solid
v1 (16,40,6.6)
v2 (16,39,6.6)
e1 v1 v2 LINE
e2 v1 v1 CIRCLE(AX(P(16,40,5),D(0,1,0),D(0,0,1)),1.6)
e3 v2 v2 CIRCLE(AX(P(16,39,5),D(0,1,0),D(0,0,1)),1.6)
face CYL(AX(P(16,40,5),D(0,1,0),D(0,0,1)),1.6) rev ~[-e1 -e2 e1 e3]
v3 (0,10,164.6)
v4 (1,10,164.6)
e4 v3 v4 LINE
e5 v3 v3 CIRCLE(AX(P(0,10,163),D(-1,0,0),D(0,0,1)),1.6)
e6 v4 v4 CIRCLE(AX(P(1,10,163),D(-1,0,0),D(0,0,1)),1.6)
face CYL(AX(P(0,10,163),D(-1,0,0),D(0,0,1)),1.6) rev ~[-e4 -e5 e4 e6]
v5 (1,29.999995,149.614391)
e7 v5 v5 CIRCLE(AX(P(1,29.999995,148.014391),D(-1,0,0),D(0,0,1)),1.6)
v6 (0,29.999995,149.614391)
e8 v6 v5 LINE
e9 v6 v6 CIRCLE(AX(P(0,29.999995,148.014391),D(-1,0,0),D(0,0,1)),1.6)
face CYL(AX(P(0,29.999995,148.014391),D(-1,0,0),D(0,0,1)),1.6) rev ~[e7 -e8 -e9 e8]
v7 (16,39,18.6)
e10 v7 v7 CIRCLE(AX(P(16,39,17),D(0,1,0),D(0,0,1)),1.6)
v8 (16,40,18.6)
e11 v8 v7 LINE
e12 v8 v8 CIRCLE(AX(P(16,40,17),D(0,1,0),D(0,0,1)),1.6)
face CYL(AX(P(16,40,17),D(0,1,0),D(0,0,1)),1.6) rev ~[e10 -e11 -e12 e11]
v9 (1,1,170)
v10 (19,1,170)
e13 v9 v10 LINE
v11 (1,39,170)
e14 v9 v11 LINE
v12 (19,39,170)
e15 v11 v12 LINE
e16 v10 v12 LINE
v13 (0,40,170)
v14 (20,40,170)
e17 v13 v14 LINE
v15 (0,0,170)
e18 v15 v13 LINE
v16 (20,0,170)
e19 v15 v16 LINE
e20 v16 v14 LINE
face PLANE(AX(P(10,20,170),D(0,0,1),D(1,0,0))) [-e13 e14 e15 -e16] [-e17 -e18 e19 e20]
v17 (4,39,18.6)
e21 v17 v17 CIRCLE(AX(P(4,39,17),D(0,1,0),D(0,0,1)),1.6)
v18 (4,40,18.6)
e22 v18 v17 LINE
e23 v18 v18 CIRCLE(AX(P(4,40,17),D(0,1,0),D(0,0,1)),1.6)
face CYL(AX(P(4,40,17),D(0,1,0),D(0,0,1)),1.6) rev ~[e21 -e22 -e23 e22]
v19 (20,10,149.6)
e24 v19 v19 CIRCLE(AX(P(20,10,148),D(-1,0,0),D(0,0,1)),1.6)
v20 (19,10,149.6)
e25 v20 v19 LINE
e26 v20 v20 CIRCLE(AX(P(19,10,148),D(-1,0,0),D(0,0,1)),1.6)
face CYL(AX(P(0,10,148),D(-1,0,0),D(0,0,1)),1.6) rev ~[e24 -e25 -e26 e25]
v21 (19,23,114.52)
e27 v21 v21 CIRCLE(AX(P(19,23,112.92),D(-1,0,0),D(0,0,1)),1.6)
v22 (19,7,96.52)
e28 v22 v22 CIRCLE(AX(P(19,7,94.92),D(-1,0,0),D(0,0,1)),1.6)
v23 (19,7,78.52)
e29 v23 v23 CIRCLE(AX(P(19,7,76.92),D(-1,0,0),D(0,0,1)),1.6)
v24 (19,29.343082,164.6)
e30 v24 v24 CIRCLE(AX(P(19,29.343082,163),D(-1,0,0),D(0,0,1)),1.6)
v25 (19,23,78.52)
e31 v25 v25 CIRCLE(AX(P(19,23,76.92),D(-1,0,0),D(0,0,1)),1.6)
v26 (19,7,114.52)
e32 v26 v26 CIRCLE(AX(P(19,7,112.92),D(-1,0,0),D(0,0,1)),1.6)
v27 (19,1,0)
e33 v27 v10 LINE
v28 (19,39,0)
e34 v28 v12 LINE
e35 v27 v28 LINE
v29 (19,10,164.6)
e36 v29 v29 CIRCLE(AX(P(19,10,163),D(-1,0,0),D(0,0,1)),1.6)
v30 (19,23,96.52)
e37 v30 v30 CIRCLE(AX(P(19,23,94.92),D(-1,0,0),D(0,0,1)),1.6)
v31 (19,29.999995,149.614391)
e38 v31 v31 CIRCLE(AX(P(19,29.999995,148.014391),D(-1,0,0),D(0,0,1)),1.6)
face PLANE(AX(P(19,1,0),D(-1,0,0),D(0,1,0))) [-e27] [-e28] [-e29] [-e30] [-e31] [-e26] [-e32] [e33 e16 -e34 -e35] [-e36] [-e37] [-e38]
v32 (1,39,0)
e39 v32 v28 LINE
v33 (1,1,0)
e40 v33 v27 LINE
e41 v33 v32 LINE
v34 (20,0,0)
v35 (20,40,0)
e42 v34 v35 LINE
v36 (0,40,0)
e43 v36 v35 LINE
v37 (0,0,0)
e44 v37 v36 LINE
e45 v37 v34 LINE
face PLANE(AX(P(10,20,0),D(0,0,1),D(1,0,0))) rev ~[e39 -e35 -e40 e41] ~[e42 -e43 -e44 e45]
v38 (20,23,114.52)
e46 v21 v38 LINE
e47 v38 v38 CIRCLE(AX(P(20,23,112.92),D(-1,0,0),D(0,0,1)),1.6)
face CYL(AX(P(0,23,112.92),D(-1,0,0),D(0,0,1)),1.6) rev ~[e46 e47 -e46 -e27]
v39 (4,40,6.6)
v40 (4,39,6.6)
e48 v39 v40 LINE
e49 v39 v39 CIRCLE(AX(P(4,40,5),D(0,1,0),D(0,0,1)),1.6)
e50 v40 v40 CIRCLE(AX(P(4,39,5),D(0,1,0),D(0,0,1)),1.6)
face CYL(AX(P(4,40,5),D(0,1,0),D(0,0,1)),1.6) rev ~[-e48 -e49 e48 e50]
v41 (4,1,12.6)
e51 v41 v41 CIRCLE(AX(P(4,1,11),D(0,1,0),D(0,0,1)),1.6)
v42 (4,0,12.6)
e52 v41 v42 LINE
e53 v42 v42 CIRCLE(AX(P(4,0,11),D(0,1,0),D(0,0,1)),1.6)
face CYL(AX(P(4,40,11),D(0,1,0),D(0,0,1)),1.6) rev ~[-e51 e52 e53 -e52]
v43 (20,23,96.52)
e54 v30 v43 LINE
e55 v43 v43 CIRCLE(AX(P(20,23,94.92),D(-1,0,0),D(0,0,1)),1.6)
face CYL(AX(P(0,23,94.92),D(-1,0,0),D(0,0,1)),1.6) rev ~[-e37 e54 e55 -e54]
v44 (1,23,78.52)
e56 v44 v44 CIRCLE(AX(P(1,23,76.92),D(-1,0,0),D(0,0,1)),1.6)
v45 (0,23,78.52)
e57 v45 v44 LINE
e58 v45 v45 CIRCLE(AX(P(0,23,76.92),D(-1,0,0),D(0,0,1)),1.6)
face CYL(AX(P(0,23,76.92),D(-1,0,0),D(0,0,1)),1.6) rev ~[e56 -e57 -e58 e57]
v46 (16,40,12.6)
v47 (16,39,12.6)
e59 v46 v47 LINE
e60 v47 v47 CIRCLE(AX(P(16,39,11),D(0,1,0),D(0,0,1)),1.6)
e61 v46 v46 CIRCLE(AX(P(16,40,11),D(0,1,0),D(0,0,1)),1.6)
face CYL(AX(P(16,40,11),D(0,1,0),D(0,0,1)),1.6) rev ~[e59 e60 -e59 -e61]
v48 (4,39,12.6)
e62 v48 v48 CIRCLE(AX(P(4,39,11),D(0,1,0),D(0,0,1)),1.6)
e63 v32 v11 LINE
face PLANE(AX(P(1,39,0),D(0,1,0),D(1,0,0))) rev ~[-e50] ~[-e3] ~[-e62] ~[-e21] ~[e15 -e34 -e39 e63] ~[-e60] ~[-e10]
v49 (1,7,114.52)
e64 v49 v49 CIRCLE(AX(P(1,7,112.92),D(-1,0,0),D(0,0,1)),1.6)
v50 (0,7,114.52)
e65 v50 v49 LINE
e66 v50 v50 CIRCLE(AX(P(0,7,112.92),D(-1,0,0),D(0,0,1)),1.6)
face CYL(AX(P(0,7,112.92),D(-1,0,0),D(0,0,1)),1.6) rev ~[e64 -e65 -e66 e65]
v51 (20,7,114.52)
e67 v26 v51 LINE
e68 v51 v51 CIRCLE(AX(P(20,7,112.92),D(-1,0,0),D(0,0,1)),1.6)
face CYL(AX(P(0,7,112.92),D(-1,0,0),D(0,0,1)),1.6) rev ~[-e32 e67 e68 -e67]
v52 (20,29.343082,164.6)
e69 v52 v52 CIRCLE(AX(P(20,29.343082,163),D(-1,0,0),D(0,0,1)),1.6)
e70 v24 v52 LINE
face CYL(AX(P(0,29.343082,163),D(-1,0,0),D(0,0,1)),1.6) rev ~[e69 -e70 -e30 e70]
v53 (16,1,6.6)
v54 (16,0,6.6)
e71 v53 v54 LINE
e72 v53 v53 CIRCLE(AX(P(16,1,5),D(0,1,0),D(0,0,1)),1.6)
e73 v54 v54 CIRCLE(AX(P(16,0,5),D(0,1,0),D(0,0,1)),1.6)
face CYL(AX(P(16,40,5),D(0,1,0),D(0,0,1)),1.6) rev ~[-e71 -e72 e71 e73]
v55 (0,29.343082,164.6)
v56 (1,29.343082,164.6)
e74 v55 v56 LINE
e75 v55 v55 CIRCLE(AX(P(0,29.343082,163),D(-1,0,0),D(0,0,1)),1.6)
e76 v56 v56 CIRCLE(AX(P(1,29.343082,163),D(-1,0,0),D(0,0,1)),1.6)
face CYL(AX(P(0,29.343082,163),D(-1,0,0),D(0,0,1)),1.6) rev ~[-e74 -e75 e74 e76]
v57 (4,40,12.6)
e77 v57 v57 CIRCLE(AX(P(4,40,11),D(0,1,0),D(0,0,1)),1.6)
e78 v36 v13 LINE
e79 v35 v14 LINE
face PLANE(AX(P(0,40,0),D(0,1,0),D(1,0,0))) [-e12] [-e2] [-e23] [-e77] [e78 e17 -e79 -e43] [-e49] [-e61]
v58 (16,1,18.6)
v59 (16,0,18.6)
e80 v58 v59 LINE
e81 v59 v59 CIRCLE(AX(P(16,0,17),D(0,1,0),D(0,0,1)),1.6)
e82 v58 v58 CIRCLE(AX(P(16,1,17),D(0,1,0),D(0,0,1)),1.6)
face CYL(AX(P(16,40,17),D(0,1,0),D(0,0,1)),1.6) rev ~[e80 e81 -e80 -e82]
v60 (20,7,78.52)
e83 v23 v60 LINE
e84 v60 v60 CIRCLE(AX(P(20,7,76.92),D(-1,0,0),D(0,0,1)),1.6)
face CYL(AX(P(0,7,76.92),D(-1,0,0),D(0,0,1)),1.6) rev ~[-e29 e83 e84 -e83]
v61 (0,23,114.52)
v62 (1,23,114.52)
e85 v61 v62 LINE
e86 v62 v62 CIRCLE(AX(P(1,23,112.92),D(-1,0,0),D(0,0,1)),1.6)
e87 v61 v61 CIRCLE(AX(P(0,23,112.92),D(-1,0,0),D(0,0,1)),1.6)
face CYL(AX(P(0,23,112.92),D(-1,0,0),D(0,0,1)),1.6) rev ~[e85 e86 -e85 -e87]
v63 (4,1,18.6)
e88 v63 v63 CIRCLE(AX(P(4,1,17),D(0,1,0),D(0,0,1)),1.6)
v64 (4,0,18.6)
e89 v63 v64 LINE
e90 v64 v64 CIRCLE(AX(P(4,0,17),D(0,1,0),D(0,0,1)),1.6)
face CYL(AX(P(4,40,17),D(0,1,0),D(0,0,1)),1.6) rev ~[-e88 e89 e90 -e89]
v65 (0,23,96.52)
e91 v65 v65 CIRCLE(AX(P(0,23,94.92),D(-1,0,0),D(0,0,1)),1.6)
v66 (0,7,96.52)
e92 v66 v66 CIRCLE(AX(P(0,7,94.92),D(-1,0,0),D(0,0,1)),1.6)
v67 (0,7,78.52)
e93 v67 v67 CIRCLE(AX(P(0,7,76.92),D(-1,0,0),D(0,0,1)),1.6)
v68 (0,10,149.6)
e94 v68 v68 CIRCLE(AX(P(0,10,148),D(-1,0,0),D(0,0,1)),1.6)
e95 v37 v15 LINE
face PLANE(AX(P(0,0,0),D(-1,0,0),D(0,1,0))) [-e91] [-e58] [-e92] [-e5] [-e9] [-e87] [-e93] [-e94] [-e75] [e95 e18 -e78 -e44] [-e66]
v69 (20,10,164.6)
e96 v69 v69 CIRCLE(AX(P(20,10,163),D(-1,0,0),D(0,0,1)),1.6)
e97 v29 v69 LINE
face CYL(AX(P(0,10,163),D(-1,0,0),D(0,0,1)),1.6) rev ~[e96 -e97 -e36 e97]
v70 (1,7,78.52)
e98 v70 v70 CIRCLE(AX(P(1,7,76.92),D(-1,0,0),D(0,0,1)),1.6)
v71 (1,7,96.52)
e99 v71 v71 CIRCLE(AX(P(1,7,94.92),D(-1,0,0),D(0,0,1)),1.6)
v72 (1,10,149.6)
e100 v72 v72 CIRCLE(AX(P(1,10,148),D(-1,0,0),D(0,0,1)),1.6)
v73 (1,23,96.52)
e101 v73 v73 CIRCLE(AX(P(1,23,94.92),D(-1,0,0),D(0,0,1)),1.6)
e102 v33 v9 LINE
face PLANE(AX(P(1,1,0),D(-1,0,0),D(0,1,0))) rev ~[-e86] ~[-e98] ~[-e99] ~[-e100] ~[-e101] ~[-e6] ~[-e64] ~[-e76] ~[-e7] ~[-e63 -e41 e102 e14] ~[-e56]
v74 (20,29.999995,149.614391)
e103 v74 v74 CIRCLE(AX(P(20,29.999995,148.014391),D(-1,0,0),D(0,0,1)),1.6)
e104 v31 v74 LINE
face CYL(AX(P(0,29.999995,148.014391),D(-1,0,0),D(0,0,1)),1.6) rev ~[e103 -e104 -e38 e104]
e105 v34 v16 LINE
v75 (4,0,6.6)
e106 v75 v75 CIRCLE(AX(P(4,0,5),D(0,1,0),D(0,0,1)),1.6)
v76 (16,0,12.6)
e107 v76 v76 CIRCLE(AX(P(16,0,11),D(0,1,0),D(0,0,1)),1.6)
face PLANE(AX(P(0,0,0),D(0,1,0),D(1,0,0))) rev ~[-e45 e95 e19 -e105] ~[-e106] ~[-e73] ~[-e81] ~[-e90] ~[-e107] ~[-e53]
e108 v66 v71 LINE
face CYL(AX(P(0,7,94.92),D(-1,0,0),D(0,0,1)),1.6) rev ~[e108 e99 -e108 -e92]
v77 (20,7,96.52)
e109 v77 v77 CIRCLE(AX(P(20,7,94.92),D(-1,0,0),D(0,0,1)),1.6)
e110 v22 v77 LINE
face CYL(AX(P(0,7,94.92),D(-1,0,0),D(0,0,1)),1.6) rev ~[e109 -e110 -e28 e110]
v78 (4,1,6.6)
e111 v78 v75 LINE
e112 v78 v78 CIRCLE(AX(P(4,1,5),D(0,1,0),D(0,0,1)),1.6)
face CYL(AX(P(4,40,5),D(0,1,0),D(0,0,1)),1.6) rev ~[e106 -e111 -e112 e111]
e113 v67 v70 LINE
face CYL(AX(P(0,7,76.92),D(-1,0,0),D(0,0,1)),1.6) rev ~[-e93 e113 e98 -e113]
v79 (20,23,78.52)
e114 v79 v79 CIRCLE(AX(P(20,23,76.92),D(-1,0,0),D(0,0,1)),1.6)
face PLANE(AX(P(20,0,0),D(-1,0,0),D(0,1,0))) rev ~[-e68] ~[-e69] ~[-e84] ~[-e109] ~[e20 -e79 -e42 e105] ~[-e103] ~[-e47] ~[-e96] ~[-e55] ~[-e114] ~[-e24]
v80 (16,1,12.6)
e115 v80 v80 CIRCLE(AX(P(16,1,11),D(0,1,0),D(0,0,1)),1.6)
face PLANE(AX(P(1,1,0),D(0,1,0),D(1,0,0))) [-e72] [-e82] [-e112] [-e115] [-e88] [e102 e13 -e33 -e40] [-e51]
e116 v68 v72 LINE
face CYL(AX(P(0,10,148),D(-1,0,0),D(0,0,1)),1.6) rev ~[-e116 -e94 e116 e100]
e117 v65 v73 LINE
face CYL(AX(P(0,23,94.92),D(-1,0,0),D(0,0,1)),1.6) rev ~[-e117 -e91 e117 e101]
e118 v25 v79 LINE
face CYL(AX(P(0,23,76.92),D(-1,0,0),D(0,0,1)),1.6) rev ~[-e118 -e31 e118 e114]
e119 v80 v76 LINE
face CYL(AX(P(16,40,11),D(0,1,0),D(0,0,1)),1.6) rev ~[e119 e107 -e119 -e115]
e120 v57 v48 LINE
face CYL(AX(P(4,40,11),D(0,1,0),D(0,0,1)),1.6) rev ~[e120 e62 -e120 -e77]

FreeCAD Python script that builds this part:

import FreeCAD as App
import Part
import Sketcher

V = App.Vector
Q = App.Units.Quantity

doc = App.newDocument("Part")
body = doc.addObject("PartDesign::Body", "Body")

sketch1 = body.newObject("Sketcher::SketchObject", "Sketch")
sketch1.AttachmentSupport = (doc.getObject("XY_Plane"), [""])
sketch1.MapMode = "FlatFace"
sketch1.addGeometry([
    Part.LineSegment(V(0, 40, 0), V(0, 0, 0)),
    Part.LineSegment(V(0, 0, 0), V(20, 0, 0)),
    Part.LineSegment(V(20, 0, 0), V(20, 40, 0)),
    Part.LineSegment(V(20, 40, 0), V(0, 40, 0)),
    Part.LineSegment(V(19, 1, 0), V(1, 1, 0)),
    Part.LineSegment(V(1, 1, 0), V(1, 39, 0)),
    Part.LineSegment(V(1, 39, 0), V(19, 39, 0)),
    Part.LineSegment(V(19, 39, 0), V(19, 1, 0)),
], False)
sketch1.addConstraint([
    Sketcher.Constraint("Coincident", 0, 2, 1, 1),
    Sketcher.Constraint("Coincident", 1, 2, 2, 1),
    Sketcher.Constraint("Coincident", 2, 2, 3, 1),
    Sketcher.Constraint("Coincident", 3, 2, 0, 1),
    Sketcher.Constraint("Coincident", 4, 2, 5, 1),
    Sketcher.Constraint("Coincident", 5, 2, 6, 1),
    Sketcher.Constraint("Coincident", 6, 2, 7, 1),
    Sketcher.Constraint("Coincident", 7, 2, 4, 1),
    Sketcher.Constraint("Vertical", 0),
    Sketcher.Constraint("Horizontal", 1),
    Sketcher.Constraint("Vertical", 2),
    Sketcher.Constraint("Horizontal", 3),
    Sketcher.Constraint("Horizontal", 4),
    Sketcher.Constraint("Vertical", 5),
    Sketcher.Constraint("Horizontal", 6),
    Sketcher.Constraint("Vertical", 7),
    Sketcher.Constraint("Coincident", 0, 2, -1, 1),
    Sketcher.Constraint("DistanceX", 1, 1, 1, 2, Q("20 mm")),
    Sketcher.Constraint("DistanceX", 4, 2, 4, 1, Q("18 mm")),
    Sketcher.Constraint("DistanceY", 0, 2, 0, 1, Q("40 mm")),
    Sketcher.Constraint("DistanceY", 5, 1, 5, 2, Q("38 mm")),
    Sketcher.Constraint("DistanceX", -1, 1, 4, 2, Q("1 mm")),
    Sketcher.Constraint("DistanceY", -1, 1, 4, 2, Q("1 mm")),
])
pad1 = body.newObject("PartDesign::Pad", "Pad")
pad1.Profile = sketch1
pad1.Length = 170

sketch2 = body.newObject("Sketcher::SketchObject", "Sketch001")
sketch2.AttachmentSupport = (doc.getObject("YZ_Plane"), [""])
sketch2.MapMode = "FlatFace"
sketch2.addGeometry([
    Part.Circle(V(7, 112.9, 0), V(0, 0, 1), 1.6),
    Part.Circle(V(7, 94.9, 0), V(0, 0, 1), 1.6),
    Part.Circle(V(7, 76.9, 0), V(0, 0, 1), 1.6),
    Part.Circle(V(23, 94.9, 0), V(0, 0, 1), 1.6),
    Part.Circle(V(23, 76.9, 0), V(0, 0, 1), 1.6),
    Part.Circle(V(23, 112.9, 0), V(0, 0, 1), 1.6),
], False)
sketch2.addConstraint([
    Sketcher.Constraint("Equal", 0, 1),
    Sketcher.Constraint("Equal", 1, 2),
    Sketcher.Constraint("Equal", 2, 3),
    Sketcher.Constraint("Equal", 3, 4),
    Sketcher.Constraint("Equal", 4, 5),
    Sketcher.Constraint("Horizontal", 1, 3, 3, 3),
    Sketcher.Constraint("Horizontal", 2, 3, 4, 3),
    Sketcher.Constraint("Horizontal", 0, 3, 5, 3),
    Sketcher.Constraint("Vertical", 0, 3, 1, 3),
    Sketcher.Constraint("Vertical", 1, 3, 2, 3),
    Sketcher.Constraint("Vertical", 3, 3, 4, 3),
    Sketcher.Constraint("Vertical", 4, 3, 5, 3),
    Sketcher.Constraint("Diameter", 0, Q("3.2 mm")),
    Sketcher.Constraint("DistanceX", -1, 1, 0, 3, Q("7 mm")),
    Sketcher.Constraint("DistanceX", -1, 1, 3, 3, Q("23 mm")),
    Sketcher.Constraint("DistanceY", 1, 3, 0, 3, Q("18 mm")),
    Sketcher.Constraint("DistanceY", 2, 3, 1, 3, Q("18 mm")),
    Sketcher.Constraint("DistanceY", -1, 1, 0, 3, Q("112.92 mm")),
])
pocket1 = body.newObject("PartDesign::Pocket", "Pocket")
pocket1.Profile = sketch2
pocket1.Type = "ThroughAll"
pocket1.Reversed = True

sketch3 = body.newObject("Sketcher::SketchObject", "Sketch002")
sketch3.AttachmentSupport = (doc.getObject("YZ_Plane"), [""])
sketch3.MapMode = "FlatFace"
sketch3.addGeometry([
    Part.Circle(V(29.3, 163, 0), V(0, 0, 1), 1.6),
    Part.Circle(V(10, 163, 0), V(0, 0, 1), 1.6),
    Part.Circle(V(30, 148, 0), V(0, 0, 1), 1.6),
    Part.Circle(V(10, 148, 0), V(0, 0, 1), 1.6),
], False)
sketch3.addConstraint([
    Sketcher.Constraint("Equal", 0, 1),
    Sketcher.Constraint("Equal", 1, 2),
    Sketcher.Constraint("Equal", 2, 3),
    Sketcher.Constraint("Horizontal", 0, 3, 1, 3),
    Sketcher.Constraint("Vertical", 1, 3, 3, 3),
    Sketcher.Constraint("Diameter", 0, Q("3.2 mm")),
    Sketcher.Constraint("DistanceY", -1, 1, 0, 3, Q("163 mm")),
    Sketcher.Constraint("DistanceX", -1, 1, 1, 3, Q("10 mm")),
    Sketcher.Constraint("DistanceY", -1, 1, 3, 3, Q("148 mm")),
    Sketcher.Constraint("DistanceX", -1, 1, 0, 3, Q("29.343082 mm")),
    Sketcher.Constraint("DistanceY", -1, 1, 2, 3, Q("148.014391 mm")),
    Sketcher.Constraint("DistanceX", -1, 1, 2, 3, Q("29.999995 mm")),
])
pocket2 = body.newObject("PartDesign::Pocket", "Pocket001")
pocket2.Profile = sketch3
pocket2.Type = "ThroughAll"
pocket2.Reversed = True

sketch4 = body.newObject("Sketcher::SketchObject", "Sketch003")
sketch4.AttachmentSupport = (doc.getObject("XZ_Plane"), [""])
sketch4.MapMode = "FlatFace"
sketch4.AttachmentOffset = App.Placement(V(0, 0, -40), App.Rotation())
sketch4.addGeometry([
    Part.Circle(V(16, 11, 0), V(0, 0, 1), 1.6),
    Part.Circle(V(4, 11, 0), V(0, 0, 1), 1.6),
    Part.Circle(V(16, 5, 0), V(0, 0, 1), 1.6),
    Part.Circle(V(4, 5, 0), V(0, 0, 1), 1.6),
    Part.Circle(V(16, 17, 0), V(0, 0, 1), 1.6),
    Part.Circle(V(4, 17, 0), V(0, 0, 1), 1.6),
], False)
sketch4.addConstraint([
    Sketcher.Constraint("Equal", 0, 1),
    Sketcher.Constraint("Equal", 1, 2),
    Sketcher.Constraint("Equal", 2, 3),
    Sketcher.Constraint("Equal", 3, 4),
    Sketcher.Constraint("Equal", 4, 5),
    Sketcher.Constraint("Horizontal", 0, 3, 1, 3),
    Sketcher.Constraint("Horizontal", 2, 3, 3, 3),
    Sketcher.Constraint("Horizontal", 4, 3, 5, 3),
    Sketcher.Constraint("Vertical", 0, 3, 2, 3),
    Sketcher.Constraint("Vertical", 1, 3, 3, 3),
    Sketcher.Constraint("Vertical", 2, 3, 4, 3),
    Sketcher.Constraint("Vertical", 3, 3, 5, 3),
    Sketcher.Constraint("Diameter", 0, Q("3.2 mm")),
    Sketcher.Constraint("DistanceX", -1, 1, 0, 3, Q("16 mm")),
    Sketcher.Constraint("DistanceY", -1, 1, 0, 3, Q("11 mm")),
    Sketcher.Constraint("DistanceX", -1, 1, 1, 3, Q("4 mm")),
    Sketcher.Constraint("DistanceY", -1, 1, 2, 3, Q("5 mm")),
    Sketcher.Constraint("DistanceY", -1, 1, 4, 3, Q("17 mm")),
])
pocket3 = body.newObject("PartDesign::Pocket", "Pocket002")
pocket3.Profile = sketch4
pocket3.Type = "ThroughAll"
pocket3.Reversed = True

doc.recompute()
